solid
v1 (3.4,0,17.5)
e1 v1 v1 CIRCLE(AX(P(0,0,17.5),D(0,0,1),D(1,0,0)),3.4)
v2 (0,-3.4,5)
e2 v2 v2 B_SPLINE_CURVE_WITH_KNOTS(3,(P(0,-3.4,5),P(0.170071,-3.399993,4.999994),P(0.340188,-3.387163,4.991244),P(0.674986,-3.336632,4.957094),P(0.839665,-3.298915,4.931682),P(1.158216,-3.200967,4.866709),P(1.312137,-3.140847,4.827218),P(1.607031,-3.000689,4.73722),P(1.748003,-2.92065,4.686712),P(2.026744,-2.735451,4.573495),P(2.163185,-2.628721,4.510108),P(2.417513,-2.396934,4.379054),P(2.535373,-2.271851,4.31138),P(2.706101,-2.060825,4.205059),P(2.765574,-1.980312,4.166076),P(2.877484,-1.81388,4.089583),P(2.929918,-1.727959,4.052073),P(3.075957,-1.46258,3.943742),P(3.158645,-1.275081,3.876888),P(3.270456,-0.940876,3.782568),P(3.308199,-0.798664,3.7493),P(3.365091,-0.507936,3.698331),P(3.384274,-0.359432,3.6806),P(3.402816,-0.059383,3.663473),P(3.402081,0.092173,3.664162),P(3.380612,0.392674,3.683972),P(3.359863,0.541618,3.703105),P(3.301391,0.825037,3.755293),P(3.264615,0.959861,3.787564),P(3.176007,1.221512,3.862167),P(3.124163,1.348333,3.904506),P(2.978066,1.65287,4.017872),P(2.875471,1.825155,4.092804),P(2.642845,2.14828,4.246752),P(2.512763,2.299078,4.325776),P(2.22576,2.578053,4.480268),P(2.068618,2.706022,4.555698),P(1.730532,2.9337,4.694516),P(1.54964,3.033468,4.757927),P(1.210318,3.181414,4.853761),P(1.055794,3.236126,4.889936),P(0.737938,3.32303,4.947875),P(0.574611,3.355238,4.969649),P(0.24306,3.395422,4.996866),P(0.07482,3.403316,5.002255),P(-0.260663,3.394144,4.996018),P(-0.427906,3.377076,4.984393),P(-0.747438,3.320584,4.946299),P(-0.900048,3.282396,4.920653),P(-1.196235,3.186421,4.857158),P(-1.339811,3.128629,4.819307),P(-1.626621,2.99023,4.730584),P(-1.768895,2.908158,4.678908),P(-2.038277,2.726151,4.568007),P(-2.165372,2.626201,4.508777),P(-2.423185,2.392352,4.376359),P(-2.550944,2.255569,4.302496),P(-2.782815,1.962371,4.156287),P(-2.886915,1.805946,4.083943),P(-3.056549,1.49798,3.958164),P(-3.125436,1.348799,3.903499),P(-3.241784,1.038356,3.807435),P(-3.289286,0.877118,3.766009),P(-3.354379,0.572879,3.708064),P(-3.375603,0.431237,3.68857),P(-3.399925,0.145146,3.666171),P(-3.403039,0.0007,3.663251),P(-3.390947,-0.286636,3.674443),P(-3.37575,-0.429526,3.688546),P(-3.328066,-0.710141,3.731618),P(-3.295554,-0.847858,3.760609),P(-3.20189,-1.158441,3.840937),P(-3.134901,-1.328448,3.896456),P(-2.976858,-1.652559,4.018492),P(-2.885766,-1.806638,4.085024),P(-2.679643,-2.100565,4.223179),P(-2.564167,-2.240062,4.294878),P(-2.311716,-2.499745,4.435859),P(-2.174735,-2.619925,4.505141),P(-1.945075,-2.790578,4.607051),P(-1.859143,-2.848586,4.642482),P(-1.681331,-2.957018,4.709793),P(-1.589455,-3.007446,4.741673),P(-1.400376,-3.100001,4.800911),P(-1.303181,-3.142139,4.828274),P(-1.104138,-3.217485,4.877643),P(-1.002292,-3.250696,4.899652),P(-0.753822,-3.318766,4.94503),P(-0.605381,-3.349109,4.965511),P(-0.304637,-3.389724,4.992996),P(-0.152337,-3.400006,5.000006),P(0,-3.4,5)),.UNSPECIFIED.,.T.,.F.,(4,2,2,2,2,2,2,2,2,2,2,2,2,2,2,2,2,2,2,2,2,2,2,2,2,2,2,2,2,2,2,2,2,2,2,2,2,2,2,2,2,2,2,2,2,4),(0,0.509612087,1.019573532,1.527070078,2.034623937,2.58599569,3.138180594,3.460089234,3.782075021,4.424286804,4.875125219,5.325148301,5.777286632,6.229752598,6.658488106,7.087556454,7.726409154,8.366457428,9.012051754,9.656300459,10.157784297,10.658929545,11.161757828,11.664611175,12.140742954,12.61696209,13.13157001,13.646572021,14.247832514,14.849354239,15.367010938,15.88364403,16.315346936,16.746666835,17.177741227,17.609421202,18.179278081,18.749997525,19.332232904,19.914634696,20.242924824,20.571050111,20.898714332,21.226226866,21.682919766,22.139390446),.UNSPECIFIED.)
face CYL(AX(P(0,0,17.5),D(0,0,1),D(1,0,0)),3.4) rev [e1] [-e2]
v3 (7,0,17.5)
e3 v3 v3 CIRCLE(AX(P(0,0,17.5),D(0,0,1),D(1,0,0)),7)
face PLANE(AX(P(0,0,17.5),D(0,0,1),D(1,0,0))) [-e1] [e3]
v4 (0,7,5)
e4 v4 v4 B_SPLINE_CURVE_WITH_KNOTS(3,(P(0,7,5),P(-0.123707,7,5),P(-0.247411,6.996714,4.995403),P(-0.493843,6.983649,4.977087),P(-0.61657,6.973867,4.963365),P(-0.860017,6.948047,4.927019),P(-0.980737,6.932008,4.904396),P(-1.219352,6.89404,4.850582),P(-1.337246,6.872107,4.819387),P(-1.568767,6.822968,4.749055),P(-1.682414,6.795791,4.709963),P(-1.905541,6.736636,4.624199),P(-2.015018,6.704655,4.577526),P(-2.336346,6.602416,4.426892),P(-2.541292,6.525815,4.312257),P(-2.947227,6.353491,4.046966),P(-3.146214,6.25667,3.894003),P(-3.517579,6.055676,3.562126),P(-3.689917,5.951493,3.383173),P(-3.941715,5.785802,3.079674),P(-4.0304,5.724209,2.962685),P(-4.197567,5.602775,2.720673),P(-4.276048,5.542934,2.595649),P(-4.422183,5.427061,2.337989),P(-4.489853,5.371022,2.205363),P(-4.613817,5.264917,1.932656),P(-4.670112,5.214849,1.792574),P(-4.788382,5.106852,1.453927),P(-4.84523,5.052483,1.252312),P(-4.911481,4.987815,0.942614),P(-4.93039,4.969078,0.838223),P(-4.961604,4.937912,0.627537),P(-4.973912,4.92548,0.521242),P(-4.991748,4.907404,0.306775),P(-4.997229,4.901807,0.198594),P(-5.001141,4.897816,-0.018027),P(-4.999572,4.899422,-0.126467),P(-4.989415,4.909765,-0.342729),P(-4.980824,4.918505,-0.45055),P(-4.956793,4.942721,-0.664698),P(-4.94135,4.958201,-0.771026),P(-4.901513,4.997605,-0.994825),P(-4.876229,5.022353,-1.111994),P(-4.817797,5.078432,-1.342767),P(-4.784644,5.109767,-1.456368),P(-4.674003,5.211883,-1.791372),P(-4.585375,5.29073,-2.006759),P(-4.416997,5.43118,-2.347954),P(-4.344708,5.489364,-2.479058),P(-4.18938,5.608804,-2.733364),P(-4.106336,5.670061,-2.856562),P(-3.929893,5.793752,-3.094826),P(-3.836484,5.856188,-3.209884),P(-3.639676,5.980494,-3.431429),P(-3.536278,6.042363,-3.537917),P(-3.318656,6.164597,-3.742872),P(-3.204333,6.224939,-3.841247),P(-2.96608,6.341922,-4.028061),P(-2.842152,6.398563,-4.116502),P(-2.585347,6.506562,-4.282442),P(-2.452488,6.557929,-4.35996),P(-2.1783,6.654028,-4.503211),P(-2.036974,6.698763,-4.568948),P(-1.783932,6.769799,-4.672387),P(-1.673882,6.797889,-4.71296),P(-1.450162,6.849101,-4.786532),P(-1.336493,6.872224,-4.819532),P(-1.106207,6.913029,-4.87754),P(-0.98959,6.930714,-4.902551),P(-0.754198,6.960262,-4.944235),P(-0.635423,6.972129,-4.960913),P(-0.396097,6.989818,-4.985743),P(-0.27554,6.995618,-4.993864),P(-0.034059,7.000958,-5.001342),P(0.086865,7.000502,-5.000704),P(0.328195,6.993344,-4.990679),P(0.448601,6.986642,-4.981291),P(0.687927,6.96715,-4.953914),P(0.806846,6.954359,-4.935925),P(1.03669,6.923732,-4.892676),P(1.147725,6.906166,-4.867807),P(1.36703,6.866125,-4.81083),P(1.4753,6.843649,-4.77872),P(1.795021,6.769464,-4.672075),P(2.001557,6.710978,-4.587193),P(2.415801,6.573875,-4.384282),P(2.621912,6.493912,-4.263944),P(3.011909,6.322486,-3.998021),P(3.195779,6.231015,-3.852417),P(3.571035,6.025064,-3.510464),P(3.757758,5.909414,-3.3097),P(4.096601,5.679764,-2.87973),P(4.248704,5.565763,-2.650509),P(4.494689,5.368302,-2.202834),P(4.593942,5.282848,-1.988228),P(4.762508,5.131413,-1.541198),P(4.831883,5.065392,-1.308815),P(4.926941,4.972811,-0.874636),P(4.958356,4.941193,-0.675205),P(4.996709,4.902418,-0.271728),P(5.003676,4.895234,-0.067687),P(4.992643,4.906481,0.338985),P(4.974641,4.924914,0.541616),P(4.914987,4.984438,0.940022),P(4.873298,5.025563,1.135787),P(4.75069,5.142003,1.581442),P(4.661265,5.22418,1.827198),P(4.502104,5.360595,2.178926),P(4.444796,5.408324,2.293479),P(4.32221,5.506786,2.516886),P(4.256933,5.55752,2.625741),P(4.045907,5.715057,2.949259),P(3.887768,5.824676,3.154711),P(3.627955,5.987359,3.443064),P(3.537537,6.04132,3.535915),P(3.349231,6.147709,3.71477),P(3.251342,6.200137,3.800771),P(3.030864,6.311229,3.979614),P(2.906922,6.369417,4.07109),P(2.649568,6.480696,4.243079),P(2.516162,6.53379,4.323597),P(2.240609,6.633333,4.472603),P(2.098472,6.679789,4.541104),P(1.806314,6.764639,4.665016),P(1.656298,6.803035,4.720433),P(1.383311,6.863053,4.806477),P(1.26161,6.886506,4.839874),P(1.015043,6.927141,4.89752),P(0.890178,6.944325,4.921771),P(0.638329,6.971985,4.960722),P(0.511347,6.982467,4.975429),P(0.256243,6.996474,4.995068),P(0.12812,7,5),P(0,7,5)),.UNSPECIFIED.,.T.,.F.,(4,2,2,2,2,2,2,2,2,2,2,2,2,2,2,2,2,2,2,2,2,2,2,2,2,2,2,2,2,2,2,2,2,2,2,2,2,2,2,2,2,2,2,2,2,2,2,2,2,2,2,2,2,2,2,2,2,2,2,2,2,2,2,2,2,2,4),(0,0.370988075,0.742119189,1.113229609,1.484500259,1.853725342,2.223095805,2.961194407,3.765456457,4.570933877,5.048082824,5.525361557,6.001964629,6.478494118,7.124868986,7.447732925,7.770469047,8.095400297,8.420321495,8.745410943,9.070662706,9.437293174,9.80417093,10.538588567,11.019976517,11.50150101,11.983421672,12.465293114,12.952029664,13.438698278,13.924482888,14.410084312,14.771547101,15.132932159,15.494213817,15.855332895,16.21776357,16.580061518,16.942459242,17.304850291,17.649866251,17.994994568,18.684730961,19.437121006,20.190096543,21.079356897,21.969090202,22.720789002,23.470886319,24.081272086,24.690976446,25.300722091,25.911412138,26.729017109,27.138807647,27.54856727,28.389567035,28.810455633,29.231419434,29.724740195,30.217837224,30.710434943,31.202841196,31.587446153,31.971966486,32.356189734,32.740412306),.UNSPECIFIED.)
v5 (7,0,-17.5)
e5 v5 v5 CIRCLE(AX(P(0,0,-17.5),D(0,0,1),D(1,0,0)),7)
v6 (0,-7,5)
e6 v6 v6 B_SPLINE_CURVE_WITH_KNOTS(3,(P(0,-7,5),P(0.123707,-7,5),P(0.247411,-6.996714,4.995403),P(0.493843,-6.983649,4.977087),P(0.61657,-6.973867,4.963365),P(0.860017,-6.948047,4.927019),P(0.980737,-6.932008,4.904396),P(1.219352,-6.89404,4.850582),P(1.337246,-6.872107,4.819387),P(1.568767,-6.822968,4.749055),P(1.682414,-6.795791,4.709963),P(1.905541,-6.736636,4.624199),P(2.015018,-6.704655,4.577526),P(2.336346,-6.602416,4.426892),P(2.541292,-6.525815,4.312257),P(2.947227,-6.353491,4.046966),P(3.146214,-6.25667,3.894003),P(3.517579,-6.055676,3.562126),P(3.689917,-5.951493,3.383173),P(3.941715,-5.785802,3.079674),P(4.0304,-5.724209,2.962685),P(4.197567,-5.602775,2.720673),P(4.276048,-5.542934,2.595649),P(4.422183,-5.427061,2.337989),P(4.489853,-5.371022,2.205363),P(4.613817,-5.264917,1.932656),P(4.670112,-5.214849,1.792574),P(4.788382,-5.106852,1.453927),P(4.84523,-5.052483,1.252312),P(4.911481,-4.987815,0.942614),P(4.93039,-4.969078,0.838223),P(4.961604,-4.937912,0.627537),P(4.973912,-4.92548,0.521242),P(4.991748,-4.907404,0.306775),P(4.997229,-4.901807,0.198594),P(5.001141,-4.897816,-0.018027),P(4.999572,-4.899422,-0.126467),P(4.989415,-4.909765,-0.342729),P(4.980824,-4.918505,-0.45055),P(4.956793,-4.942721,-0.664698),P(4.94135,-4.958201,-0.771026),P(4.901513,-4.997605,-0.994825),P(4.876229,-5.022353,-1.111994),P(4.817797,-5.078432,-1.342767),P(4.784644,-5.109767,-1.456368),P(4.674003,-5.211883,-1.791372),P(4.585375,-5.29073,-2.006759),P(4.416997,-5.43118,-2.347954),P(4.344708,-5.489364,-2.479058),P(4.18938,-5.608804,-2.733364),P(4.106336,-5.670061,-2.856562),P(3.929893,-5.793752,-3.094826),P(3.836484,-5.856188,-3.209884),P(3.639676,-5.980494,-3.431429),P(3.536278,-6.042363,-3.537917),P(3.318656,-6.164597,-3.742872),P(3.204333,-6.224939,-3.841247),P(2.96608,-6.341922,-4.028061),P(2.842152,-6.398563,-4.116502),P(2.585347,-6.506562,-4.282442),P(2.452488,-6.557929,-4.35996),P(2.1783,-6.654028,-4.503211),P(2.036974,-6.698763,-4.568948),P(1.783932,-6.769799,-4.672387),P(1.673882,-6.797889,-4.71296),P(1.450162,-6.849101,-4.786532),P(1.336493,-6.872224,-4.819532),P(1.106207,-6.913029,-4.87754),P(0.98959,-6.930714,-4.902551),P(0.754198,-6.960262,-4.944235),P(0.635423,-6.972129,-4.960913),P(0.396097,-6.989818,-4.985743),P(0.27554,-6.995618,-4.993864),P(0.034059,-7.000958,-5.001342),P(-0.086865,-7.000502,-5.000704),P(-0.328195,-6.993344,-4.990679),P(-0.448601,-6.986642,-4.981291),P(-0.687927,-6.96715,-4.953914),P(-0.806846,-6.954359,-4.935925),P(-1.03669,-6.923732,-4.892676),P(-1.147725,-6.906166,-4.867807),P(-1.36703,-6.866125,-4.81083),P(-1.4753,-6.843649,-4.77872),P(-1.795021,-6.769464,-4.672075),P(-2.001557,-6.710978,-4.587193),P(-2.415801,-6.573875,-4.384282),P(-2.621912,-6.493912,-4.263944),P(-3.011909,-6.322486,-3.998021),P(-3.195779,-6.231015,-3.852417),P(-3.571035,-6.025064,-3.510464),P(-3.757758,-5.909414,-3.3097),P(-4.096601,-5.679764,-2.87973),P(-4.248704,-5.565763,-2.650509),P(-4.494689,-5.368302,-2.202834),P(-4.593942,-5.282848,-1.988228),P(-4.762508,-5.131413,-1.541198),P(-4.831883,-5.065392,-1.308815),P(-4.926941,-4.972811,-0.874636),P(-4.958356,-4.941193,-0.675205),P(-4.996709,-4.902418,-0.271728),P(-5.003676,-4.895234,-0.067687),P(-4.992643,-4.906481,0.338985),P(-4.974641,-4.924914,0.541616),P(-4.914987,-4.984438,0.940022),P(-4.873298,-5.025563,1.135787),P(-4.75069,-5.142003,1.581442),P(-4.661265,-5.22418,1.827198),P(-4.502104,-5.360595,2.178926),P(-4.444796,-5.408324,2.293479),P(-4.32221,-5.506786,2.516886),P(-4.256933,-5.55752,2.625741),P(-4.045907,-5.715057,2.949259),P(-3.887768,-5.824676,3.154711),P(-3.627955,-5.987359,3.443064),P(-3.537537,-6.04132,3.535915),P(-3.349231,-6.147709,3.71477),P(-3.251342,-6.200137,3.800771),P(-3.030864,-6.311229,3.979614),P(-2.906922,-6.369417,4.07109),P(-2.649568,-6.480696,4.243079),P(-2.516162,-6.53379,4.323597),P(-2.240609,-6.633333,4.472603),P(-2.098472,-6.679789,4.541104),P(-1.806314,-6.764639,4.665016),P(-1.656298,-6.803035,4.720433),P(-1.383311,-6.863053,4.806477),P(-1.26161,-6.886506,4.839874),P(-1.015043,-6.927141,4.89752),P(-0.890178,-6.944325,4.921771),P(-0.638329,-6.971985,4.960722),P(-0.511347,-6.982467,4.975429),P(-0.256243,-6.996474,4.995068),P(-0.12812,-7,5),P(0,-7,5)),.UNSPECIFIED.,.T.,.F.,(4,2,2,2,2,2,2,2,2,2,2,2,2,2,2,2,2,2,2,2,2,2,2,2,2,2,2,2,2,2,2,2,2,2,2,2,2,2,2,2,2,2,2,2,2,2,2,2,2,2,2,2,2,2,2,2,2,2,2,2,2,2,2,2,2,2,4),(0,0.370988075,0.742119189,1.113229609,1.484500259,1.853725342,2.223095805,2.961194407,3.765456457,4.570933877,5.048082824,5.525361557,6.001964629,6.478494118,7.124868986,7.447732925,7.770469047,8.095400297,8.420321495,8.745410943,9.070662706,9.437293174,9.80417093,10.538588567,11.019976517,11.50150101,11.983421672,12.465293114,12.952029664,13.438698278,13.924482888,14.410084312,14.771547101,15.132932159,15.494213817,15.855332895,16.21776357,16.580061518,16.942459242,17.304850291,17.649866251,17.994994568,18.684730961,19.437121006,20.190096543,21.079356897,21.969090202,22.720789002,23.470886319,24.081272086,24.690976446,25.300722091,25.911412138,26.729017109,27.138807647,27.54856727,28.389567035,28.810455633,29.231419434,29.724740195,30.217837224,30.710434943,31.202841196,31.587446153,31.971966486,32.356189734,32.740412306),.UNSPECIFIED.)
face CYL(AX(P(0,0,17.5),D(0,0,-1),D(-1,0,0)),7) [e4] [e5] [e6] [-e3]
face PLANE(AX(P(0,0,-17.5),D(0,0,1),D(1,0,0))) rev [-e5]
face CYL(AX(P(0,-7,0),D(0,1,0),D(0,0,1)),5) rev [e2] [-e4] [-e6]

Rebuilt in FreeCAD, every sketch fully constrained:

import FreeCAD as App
import Part
import Sketcher

V = App.Vector
Q = App.Units.Quantity

doc = App.newDocument("Part")
body = doc.addObject("PartDesign::Body", "Body")

sketch1 = body.newObject("Sketcher::SketchObject", "Sketch")
sketch1.AttachmentSupport = (doc.getObject("XY_Plane"), [""])
sketch1.MapMode = "FlatFace"
sketch1.addGeometry(Part.Circle(V(0, 0, 0), V(0, 0, 1), 7), False)
sketch1.addConstraint([
    Sketcher.Constraint("Coincident", 0, 3, -1, 1),
    Sketcher.Constraint("Diameter", 0, Q("14 mm")),
])
pad1 = body.newObject("PartDesign::Pad", "Pad")
pad1.Profile = sketch1
pad1.Length = 35
pad1.Midplane = True

sketch2 = body.newObject("Sketcher::SketchObject", "Sketch001")
sketch2.AttachmentSupport = (doc.getObject("XZ_Plane"), [""])
sketch2.MapMode = "FlatFace"
sketch2.addGeometry(Part.Circle(V(0, 0, 0), V(0, 0, 1), 5), False)
sketch2.addConstraint([
    Sketcher.Constraint("Coincident", 0, 3, -1, 1),
    Sketcher.Constraint("Diameter", 0, Q("10 mm")),
])
pocket1 = body.newObject("PartDesign::Pocket", "Pocket")
pocket1.Profile = sketch2
pocket1.Type = "ThroughAll"
pocket1.Midplane = True

sketch3 = body.newObject("Sketcher::SketchObject", "Sketch002")
sketch3.AttachmentSupport = (doc.getObject("XY_Plane"), [""])
sketch3.MapMode = "FlatFace"
sketch3.AttachmentOffset = App.Placement(V(0, 0, 17.5), App.Rotation())
sketch3.addGeometry(Part.Circle(V(0, 0, 0), V(0, 0, 1), 3.4), False)
sketch3.addConstraint([
    Sketcher.Constraint("Coincident", 0, 3, -1, 1),
    Sketcher.Constraint("Diameter", 0, Q("6.8 mm")),
])
doc.recompute()
hole = body.newObject("PartDesign::Hole", "Hole")
hole.Profile = sketch3
hole.ThreadType = "None"
hole.Diameter = 6.8
hole.DepthType = "Dimension"
hole.Depth = 20
hole.DrillPoint = "Angled"
hole.DrillPointAngle = 118

doc.recompute()
